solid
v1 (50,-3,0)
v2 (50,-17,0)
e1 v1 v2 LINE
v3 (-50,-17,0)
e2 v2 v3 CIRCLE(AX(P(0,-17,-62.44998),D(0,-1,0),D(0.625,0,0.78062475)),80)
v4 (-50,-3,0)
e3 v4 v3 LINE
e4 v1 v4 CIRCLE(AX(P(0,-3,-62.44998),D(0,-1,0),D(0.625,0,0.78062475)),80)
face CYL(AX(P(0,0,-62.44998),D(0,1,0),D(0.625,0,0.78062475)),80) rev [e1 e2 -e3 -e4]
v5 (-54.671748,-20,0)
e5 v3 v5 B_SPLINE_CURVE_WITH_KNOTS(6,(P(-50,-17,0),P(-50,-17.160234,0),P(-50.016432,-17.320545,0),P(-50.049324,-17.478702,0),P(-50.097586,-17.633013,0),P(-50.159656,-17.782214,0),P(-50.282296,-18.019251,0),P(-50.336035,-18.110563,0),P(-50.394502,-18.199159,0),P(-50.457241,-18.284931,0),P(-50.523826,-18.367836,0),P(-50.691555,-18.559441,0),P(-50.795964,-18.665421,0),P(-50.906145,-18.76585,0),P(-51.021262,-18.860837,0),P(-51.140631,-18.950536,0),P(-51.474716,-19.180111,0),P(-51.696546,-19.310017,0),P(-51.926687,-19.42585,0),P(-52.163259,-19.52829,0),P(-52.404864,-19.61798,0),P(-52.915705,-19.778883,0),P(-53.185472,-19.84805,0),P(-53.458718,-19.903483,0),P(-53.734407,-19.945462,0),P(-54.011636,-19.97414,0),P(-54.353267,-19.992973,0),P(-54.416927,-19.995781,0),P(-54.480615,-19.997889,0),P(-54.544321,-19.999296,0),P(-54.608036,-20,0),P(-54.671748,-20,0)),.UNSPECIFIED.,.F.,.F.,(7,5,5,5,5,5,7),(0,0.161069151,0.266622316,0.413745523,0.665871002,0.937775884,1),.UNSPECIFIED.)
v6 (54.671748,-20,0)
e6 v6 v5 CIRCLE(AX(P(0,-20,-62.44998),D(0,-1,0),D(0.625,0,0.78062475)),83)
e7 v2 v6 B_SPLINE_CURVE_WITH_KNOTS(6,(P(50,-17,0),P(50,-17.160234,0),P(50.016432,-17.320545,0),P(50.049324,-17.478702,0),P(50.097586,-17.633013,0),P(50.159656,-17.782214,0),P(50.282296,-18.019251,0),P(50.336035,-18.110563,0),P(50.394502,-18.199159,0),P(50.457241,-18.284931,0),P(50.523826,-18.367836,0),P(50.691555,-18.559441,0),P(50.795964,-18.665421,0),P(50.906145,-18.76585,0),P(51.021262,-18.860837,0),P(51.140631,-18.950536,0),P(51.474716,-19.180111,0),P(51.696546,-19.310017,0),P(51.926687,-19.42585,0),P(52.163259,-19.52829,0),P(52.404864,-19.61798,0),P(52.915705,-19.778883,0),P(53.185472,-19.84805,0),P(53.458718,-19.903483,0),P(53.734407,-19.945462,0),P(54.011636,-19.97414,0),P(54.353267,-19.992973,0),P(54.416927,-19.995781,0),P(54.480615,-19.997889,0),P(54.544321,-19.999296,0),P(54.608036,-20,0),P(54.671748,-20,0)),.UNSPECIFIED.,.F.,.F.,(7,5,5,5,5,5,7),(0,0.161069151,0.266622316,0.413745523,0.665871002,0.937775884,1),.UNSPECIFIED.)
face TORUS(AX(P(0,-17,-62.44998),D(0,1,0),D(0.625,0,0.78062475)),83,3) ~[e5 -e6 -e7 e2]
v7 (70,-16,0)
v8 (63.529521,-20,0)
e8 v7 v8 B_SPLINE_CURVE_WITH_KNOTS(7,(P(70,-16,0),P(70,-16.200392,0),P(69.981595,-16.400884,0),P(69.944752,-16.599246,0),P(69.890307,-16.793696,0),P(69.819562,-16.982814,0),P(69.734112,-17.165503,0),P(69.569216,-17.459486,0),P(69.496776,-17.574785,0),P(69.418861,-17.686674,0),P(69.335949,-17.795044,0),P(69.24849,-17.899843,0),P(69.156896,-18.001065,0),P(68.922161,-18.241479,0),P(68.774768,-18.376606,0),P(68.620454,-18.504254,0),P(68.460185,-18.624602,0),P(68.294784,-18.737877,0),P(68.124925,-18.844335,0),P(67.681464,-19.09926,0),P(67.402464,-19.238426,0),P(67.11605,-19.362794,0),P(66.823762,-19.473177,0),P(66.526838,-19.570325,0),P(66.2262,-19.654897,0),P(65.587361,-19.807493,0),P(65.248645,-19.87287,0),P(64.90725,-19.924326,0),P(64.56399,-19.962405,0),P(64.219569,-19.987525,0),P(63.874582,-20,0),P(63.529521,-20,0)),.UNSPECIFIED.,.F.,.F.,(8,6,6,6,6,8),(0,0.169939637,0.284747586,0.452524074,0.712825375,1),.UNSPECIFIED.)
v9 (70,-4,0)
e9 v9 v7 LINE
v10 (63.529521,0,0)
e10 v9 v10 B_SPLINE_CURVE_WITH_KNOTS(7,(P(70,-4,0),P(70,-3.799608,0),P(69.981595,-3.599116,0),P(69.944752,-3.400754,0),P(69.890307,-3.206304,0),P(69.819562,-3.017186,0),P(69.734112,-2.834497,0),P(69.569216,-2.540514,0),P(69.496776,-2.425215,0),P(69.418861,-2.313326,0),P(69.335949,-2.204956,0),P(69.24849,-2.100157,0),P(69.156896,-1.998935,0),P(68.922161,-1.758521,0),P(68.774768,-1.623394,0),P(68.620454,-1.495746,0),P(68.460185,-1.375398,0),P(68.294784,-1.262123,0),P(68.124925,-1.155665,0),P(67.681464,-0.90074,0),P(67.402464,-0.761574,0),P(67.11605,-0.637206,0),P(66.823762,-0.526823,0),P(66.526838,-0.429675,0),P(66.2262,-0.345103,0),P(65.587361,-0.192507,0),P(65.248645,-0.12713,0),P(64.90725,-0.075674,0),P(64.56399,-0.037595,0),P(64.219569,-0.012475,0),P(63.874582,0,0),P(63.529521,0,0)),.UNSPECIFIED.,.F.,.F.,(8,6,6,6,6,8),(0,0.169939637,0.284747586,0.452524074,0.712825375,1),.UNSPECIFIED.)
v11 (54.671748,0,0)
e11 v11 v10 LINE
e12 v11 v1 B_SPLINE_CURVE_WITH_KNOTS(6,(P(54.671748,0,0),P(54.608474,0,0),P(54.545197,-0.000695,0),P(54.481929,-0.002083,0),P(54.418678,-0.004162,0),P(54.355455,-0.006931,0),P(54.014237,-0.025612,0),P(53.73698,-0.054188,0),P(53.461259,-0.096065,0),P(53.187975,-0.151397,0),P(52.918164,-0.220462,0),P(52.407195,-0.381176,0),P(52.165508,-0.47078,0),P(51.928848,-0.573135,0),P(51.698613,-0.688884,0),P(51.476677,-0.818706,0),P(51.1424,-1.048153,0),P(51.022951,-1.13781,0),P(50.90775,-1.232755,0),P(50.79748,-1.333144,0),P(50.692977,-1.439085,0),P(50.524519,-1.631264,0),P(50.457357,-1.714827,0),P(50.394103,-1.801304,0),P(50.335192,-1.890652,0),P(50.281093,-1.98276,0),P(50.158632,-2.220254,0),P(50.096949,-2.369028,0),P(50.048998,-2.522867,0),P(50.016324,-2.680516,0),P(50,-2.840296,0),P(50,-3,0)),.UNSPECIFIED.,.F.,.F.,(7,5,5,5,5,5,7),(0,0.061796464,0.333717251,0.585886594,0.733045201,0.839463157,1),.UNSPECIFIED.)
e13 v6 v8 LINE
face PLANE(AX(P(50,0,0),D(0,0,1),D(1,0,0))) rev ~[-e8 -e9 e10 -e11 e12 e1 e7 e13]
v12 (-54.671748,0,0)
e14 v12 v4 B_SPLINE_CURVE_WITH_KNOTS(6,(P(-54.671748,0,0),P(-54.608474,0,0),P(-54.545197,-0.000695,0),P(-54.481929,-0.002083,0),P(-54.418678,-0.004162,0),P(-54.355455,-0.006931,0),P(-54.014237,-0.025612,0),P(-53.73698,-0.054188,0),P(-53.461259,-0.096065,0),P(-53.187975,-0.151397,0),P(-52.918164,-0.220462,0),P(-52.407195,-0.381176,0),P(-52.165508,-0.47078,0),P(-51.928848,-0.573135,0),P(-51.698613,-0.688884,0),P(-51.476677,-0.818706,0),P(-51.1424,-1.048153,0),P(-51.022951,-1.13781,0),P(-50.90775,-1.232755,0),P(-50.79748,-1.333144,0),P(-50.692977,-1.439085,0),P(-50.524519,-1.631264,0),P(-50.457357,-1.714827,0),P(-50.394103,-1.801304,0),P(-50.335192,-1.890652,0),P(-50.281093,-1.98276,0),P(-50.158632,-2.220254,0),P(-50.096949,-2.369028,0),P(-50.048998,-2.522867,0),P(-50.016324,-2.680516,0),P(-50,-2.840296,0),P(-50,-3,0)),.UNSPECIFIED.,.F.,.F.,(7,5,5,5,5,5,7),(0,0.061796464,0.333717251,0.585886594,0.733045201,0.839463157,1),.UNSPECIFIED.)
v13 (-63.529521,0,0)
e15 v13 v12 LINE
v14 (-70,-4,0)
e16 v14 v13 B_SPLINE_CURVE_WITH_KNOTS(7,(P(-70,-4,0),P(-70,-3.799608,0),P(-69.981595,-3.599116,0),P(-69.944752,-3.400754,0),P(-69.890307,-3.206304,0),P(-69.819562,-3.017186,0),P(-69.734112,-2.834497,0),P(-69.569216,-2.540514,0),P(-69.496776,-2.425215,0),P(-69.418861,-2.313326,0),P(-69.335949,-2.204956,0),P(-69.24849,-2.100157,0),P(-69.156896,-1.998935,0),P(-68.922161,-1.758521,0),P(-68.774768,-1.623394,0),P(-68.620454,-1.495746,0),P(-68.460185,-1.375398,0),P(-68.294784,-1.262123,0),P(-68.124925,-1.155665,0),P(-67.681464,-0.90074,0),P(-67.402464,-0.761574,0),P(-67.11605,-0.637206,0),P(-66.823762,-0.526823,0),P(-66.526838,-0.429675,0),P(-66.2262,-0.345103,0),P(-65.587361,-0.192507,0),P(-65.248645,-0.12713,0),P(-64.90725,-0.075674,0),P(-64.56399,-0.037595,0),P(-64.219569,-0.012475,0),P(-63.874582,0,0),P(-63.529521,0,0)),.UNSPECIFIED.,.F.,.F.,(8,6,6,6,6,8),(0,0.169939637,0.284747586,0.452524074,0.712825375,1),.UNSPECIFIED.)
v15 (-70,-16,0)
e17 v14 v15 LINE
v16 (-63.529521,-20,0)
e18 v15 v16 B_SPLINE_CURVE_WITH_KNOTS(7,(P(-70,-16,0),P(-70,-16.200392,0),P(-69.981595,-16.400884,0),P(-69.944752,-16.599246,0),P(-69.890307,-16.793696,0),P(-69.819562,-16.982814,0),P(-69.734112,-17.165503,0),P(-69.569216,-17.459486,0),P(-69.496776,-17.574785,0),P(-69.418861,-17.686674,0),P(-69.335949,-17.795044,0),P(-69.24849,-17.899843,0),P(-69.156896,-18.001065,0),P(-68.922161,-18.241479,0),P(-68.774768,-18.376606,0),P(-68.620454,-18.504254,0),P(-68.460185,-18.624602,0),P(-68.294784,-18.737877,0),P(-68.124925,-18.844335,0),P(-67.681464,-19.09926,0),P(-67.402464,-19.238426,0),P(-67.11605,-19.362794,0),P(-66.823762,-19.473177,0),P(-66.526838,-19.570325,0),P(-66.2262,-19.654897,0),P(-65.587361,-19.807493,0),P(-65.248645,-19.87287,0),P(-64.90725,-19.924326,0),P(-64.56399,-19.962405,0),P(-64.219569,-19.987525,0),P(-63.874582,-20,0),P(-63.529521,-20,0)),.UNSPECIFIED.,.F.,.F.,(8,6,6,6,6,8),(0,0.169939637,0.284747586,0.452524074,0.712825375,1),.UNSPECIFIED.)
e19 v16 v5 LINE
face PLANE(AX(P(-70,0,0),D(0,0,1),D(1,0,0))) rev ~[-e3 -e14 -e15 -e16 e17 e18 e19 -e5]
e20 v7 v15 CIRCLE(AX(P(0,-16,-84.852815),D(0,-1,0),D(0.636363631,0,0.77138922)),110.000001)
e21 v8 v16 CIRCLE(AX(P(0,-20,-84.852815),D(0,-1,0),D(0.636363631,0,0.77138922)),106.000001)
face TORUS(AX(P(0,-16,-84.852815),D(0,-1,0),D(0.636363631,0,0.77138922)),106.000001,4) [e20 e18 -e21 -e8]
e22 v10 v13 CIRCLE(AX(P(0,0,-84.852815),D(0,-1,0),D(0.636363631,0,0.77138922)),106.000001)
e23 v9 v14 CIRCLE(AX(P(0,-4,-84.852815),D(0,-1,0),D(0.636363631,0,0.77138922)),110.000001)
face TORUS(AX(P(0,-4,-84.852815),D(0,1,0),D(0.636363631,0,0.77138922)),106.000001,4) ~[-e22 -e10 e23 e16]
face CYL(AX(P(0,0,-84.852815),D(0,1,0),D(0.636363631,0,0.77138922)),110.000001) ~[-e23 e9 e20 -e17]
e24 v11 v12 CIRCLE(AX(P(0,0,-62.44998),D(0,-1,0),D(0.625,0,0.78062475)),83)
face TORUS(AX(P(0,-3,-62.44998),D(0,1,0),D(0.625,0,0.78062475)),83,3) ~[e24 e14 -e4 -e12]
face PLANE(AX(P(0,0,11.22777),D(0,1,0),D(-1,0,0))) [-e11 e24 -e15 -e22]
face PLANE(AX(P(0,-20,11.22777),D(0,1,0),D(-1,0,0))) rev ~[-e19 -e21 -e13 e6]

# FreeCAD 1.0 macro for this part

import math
import FreeCAD as App
import Part
import Sketcher
from FreeCAD import Vector


def edges_at(feature, points):
    """Names of the edges that pass closest to the given points."""
    edges = feature.Shape.Edges
    near = lambda p: min(range(len(edges)), key=lambda i: edges[i].distToShape(Part.Vertex(*p))[0])
    return sorted({f"Edge{near(p) + 1}" for p in points})

doc = App.newDocument("Part")
body = doc.addObject("PartDesign::Body", "Body")

# Sketch on XZ plane
sketch1 = doc.addObject("Sketcher::SketchObject", "Sketch")
body.addObject(sketch1)
sketch1.AttachmentSupport = (doc.XZ_Plane, [""])
sketch1.MapMode = "FlatFace"
sketch1.addGeometry([
    Part.ArcOfCircle(Part.Circle(Vector(0, -62, 0), Vector(0, 0, 1), 80), math.radians(51), math.radians(129)),
    Part.LineSegment(Vector(50, 0, 0), Vector(70, 0, 0)),
    Part.ArcOfCircle(Part.Circle(Vector(0, -85, 0), Vector(0, 0, 1), 110), math.radians(50), math.radians(130)),
    Part.LineSegment(Vector(-70, 0, 0), Vector(-50, 0, 0)),
], False)
sketch1.addConstraint([
    Sketcher.Constraint("Coincident", 0, 1, 1, 1),
    Sketcher.Constraint("Coincident", 1, 2, 2, 1),
    Sketcher.Constraint("Coincident", 2, 2, 3, 1),
    Sketcher.Constraint("Coincident", 3, 2, 0, 2),
    Sketcher.Constraint("Horizontal", 1),
    Sketcher.Constraint("Horizontal", 3),
    Sketcher.Constraint("Symmetric", 1, 2, 2, 2, -1, 1),
    Sketcher.Constraint("Symmetric", 0, 1, 3, 2, -2),
    Sketcher.Constraint("Radius", 0, 80.0),
    Sketcher.Constraint("Radius", 2, 110.000001),
    Sketcher.Constraint("DistanceX", 1, 1, 1, 2, 20.0),
    Sketcher.Constraint("DistanceX", -1, 1, 0, 1, 50.0),
])
pad1 = doc.addObject("PartDesign::Pad", "Pad")
body.addObject(pad1)
pad1.Profile = sketch1
pad1.Length = 20
doc.recompute()

fillet = doc.addObject("PartDesign::Fillet", "Fillet")
body.addObject(fillet)
fillet.Base = (pad1, edges_at(pad1, [(0, -20, 25.147)]))
fillet.Radius = 4
doc.recompute()

fillet2 = doc.addObject("PartDesign::Fillet", "Fillet001")
body.addObject(fillet2)
fillet2.Base = (fillet, edges_at(fillet, [(0, 0, 25.147)]))
fillet2.Radius = 4
doc.recompute()

fillet3 = doc.addObject("PartDesign::Fillet", "Fillet002")
body.addObject(fillet3)
fillet3.Base = (fillet2, edges_at(fillet2, [(0, 0, 17.55)]))
fillet3.Radius = 3
doc.recompute()

fillet4 = doc.addObject("PartDesign::Fillet", "Fillet003")
body.addObject(fillet4)
fillet4.Base = (fillet3, edges_at(fillet3, [(0, -20, 17.55)]))
fillet4.Radius = 3

doc.recompute()
